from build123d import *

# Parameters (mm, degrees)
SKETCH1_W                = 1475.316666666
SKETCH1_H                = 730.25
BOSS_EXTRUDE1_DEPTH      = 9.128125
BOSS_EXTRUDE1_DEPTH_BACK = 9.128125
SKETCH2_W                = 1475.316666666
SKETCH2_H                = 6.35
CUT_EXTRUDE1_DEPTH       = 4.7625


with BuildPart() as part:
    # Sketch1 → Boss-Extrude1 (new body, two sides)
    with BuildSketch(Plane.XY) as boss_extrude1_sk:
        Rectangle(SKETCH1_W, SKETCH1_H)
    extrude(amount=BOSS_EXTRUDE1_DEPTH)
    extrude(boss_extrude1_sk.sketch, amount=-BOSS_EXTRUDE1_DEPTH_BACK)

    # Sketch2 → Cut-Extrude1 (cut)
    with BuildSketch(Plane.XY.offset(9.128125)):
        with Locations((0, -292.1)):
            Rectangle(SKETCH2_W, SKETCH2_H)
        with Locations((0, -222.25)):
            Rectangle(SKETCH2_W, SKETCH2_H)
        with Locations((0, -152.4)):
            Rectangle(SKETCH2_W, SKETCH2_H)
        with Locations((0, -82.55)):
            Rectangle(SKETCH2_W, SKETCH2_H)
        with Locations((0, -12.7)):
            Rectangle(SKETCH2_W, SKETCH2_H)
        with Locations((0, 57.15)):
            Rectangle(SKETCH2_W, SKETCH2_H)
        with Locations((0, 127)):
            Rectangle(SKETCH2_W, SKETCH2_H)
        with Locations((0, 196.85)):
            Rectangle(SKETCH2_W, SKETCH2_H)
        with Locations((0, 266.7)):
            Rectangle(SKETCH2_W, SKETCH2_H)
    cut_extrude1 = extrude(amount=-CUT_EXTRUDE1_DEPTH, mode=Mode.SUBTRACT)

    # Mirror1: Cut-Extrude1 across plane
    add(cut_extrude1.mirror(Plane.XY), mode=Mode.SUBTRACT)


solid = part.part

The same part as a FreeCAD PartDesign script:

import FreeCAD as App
import Part
import Sketcher
from FreeCAD import Vector
Q = App.Units.Quantity

doc = App.newDocument("Part")
body = doc.addObject("PartDesign::Body", "Body")

sketch1 = body.newObject("Sketcher::SketchObject", "Sketch")
sketch1.AttachmentSupport = (doc.getObject("XY_Plane"), [""])
sketch1.MapMode = "FlatFace"
sketch1.addGeometry([
    Part.LineSegment(Vector(-738, 365, 0), Vector(-738, -365, 0)),
    Part.LineSegment(Vector(-738, -365, 0), Vector(738, -365, 0)),
    Part.LineSegment(Vector(738, -365, 0), Vector(738, 365, 0)),
    Part.LineSegment(Vector(738, 365, 0), Vector(-738, 365, 0)),
], False)
sketch1.addConstraint([
    Sketcher.Constraint("Coincident", 0, 2, 1, 1),
    Sketcher.Constraint("Coincident", 1, 2, 2, 1),
    Sketcher.Constraint("Coincident", 2, 2, 3, 1),
    Sketcher.Constraint("Coincident", 3, 2, 0, 1),
    Sketcher.Constraint("Vertical", 0),
    Sketcher.Constraint("Horizontal", 1),
    Sketcher.Constraint("Vertical", 2),
    Sketcher.Constraint("Horizontal", 3),
    Sketcher.Constraint("Symmetric", 0, 2, 2, 2, -1, 1),
    Sketcher.Constraint("DistanceY", 0, 2, 0, 1, Q("28.75 in")),
    Sketcher.Constraint("DistanceX", 1, 1, 1, 2, 1475.316667),
])
pad1 = body.newObject("PartDesign::Pad", "Pad")
pad1.Profile = sketch1
pad1.Type = "TwoLengths"
pad1.Length = Q("0.359375 in")
pad1.Length2 = Q("0.359375 in")

sketch2 = body.newObject("Sketcher::SketchObject", "Sketch001")
sketch2.AttachmentSupport = (doc.getObject("XY_Plane"), [""])
sketch2.MapMode = "FlatFace"
sketch2.AttachmentOffset = App.Placement(Vector(0, 0, 0.359375 * 25.4), App.Rotation())
sketch2.addGeometry([
    Part.LineSegment(Vector(-738, -289, 0), Vector(-738, -295, 0)),
    Part.LineSegment(Vector(-738, -295, 0), Vector(738, -295, 0)),
    Part.LineSegment(Vector(738, -295, 0), Vector(738, -289, 0)),
    Part.LineSegment(Vector(738, -289, 0), Vector(-738, -289, 0)),
    Part.LineSegment(Vector(-738, -219, 0), Vector(-738, -225, 0)),
    Part.LineSegment(Vector(-738, -225, 0), Vector(738, -225, 0)),
    Part.LineSegment(Vector(738, -225, 0), Vector(738, -219, 0)),
    Part.LineSegment(Vector(738, -219, 0), Vector(-738, -219, 0)),
    Part.LineSegment(Vector(-738, -149, 0), Vector(-738, -156, 0)),
    Part.LineSegment(Vector(-738, -156, 0), Vector(738, -156, 0)),
    Part.LineSegment(Vector(738, -156, 0), Vector(738, -149, 0)),
    Part.LineSegment(Vector(738, -149, 0), Vector(-738, -149, 0)),
    Part.LineSegment(Vector(-738, -79, 0), Vector(-738, -86, 0)),
    Part.LineSegment(Vector(-738, -86, 0), Vector(738, -86, 0)),
    Part.LineSegment(Vector(738, -86, 0), Vector(738, -79, 0)),
    Part.LineSegment(Vector(738, -79, 0), Vector(-738, -79, 0)),
    Part.LineSegment(Vector(-738, -10, 0), Vector(-738, -16, 0)),
    Part.LineSegment(Vector(-738, -16, 0), Vector(738, -16, 0)),
    Part.LineSegment(Vector(738, -16, 0), Vector(738, -10, 0)),
    Part.LineSegment(Vector(738, -10, 0), Vector(-738, -10, 0)),
    Part.LineSegment(Vector(-738, 60, 0), Vector(-738, 54, 0)),
    Part.LineSegment(Vector(-738, 54, 0), Vector(738, 54, 0)),
    Part.LineSegment(Vector(738, 54, 0), Vector(738, 60, 0)),
    Part.LineSegment(Vector(738, 60, 0), Vector(-738, 60, 0)),
    Part.LineSegment(Vector(-738, 130, 0), Vector(-738, 124, 0)),
    Part.LineSegment(Vector(-738, 124, 0), Vector(738, 124, 0)),
    Part.LineSegment(Vector(738, 124, 0), Vector(738, 130, 0)),
    Part.LineSegment(Vector(738, 130, 0), Vector(-738, 130, 0)),
    Part.LineSegment(Vector(-738, 200, 0), Vector(-738, 194, 0)),
    Part.LineSegment(Vector(-738, 194, 0), Vector(738, 194, 0)),
    Part.LineSegment(Vector(738, 194, 0), Vector(738, 200, 0)),
    Part.LineSegment(Vector(738, 200, 0), Vector(-738, 200, 0)),
    Part.LineSegment(Vector(-738, 270, 0), Vector(-738, 264, 0)),
    Part.LineSegment(Vector(-738, 264, 0), Vector(738, 264, 0)),
    Part.LineSegment(Vector(738, 264, 0), Vector(738, 270, 0)),
    Part.LineSegment(Vector(738, 270, 0), Vector(-738, 270, 0)),
], False)
sketch2.addConstraint([
    Sketcher.Constraint("Coincident", 0, 2, 1, 1),
    Sketcher.Constraint("Coincident", 1, 2, 2, 1),
    Sketcher.Constraint("Coincident", 2, 2, 3, 1),
    Sketcher.Constraint("Coincident", 3, 2, 0, 1),
    Sketcher.Constraint("Coincident", 4, 2, 5, 1),
    Sketcher.Constraint("Coincident", 5, 2, 6, 1),
    Sketcher.Constraint("Coincident", 6, 2, 7, 1),
    Sketcher.Constraint("Coincident", 7, 2, 4, 1),
    Sketcher.Constraint("Coincident", 8, 2, 9, 1),
    Sketcher.Constraint("Coincident", 9, 2, 10, 1),
    Sketcher.Constraint("Coincident", 10, 2, 11, 1),
    Sketcher.Constraint("Coincident", 11, 2, 8, 1),
    Sketcher.Constraint("Coincident", 12, 2, 13, 1),
    Sketcher.Constraint("Coincident", 13, 2, 14, 1),
    Sketcher.Constraint("Coincident", 14, 2, 15, 1),
    Sketcher.Constraint("Coincident", 15, 2, 12, 1),
    Sketcher.Constraint("Coincident", 16, 2, 17, 1),
    Sketcher.Constraint("Coincident", 17, 2, 18, 1),
    Sketcher.Constraint("Coincident", 18, 2, 19, 1),
    Sketcher.Constraint("Coincident", 19, 2, 16, 1),
    Sketcher.Constraint("Coincident", 20, 2, 21, 1),
    Sketcher.Constraint("Coincident", 21, 2, 22, 1),
    Sketcher.Constraint("Coincident", 22, 2, 23, 1),
    Sketcher.Constraint("Coincident", 23, 2, 20, 1),
    Sketcher.Constraint("Coincident", 24, 2, 25, 1),
    Sketcher.Constraint("Coincident", 25, 2, 26, 1),
    Sketcher.Constraint("Coincident", 26, 2, 27, 1),
    Sketcher.Constraint("Coincident", 27, 2, 24, 1),
    Sketcher.Constraint("Coincident", 28, 2, 29, 1),
    Sketcher.Constraint("Coincident", 29, 2, 30, 1),
    Sketcher.Constraint("Coincident", 30, 2, 31, 1),
    Sketcher.Constraint("Coincident", 31, 2, 28, 1),
    Sketcher.Constraint("Coincident", 32, 2, 33, 1),
    Sketcher.Constraint("Coincident", 33, 2, 34, 1),
    Sketcher.Constraint("Coincident", 34, 2, 35, 1),
    Sketcher.Constraint("Coincident", 35, 2, 32, 1),
    Sketcher.Constraint("Vertical", 0),
    Sketcher.Constraint("Horizontal", 1),
    Sketcher.Constraint("Vertical", 2),
    Sketcher.Constraint("Horizontal", 3),
    Sketcher.Constraint("Vertical", 4),
    Sketcher.Constraint("Horizontal", 5),
    Sketcher.Constraint("Vertical", 6),
    Sketcher.Constraint("Horizontal", 7),
    Sketcher.Constraint("Vertical", 8),
    Sketcher.Constraint("Horizontal", 9),
    Sketcher.Constraint("Vertical", 10),
    Sketcher.Constraint("Horizontal", 11),
    Sketcher.Constraint("Vertical", 12),
    Sketcher.Constraint("Horizontal", 13),
    Sketcher.Constraint("Vertical", 14),
    Sketcher.Constraint("Horizontal", 15),
    Sketcher.Constraint("Vertical", 16),
    Sketcher.Constraint("Horizontal", 17),
    Sketcher.Constraint("Vertical", 18),
    Sketcher.Constraint("Horizontal", 19),
    Sketcher.Constraint("Vertical", 20),
    Sketcher.Constraint("Horizontal", 21),
    Sketcher.Constraint("Vertical", 22),
    Sketcher.Constraint("Horizontal", 23),
    Sketcher.Constraint("Vertical", 24),
    Sketcher.Constraint("Horizontal", 25),
    Sketcher.Constraint("Vertical", 26),
    Sketcher.Constraint("Horizontal", 27),
    Sketcher.Constraint("Vertical", 28),
    Sketcher.Constraint("Horizontal", 29),
    Sketcher.Constraint("Vertical", 30),
    Sketcher.Constraint("Horizontal", 31),
    Sketcher.Constraint("Vertical", 32),
    Sketcher.Constraint("Horizontal", 33),
    Sketcher.Constraint("Vertical", 34),
    Sketcher.Constraint("Horizontal", 35),
    Sketcher.Constraint("Vertical", 3, 2, 4, 2),
    Sketcher.Constraint("Vertical", 2, 2, 5, 2),
    Sketcher.Constraint("Vertical", 7, 2, 8, 2),
    Sketcher.Constraint("Vertical", 6, 2, 9, 2),
    Sketcher.Constraint("Vertical", 11, 2, 12, 2),
    Sketcher.Constraint("Vertical", 10, 2, 13, 2),
    Sketcher.Constraint("Vertical", 15, 2, 16, 2),
    Sketcher.Constraint("Vertical", 14, 2, 17, 2),
    Sketcher.Constraint("Vertical", 19, 2, 20, 2),
    Sketcher.Constraint("Vertical", 18, 2, 21, 2),
    Sketcher.Constraint("Vertical", 23, 2, 24, 2),
    Sketcher.Constraint("Vertical", 22, 2, 25, 2),
    Sketcher.Constraint("Vertical", 27, 2, 28, 2),
    Sketcher.Constraint("Vertical", 26, 2, 29, 2),
    Sketcher.Constraint("Vertical", 31, 2, 32, 2),
    Sketcher.Constraint("Vertical", 30, 2, 33, 2),
    Sketcher.Constraint("Equal", 2, 4),
    Sketcher.Constraint("Equal", 6, 8),
    Sketcher.Constraint("Equal", 10, 12),
    Sketcher.Constraint("Equal", 14, 16),
    Sketcher.Constraint("Equal", 18, 20),
    Sketcher.Constraint("Equal", 22, 24),
    Sketcher.Constraint("Equal", 26, 28),
    Sketcher.Constraint("Equal", 30, 32),
    Sketcher.Constraint("DistanceY", 1, 2, 6, 2, Q("3 in")),
    Sketcher.Constraint("DistanceY", 5, 2, 10, 2, Q("3 in")),
    Sketcher.Constraint("DistanceY", 3, 2, 12, 2, Q("8 in")),
    Sketcher.Constraint("DistanceY", 9, 2, 14, 2, Q("3 in")),
    Sketcher.Constraint("DistanceY", 7, 2, 16, 2, Q("8 in")),
    Sketcher.Constraint("DistanceY", 11, 2, 20, 2, Q("8 in")),
    Sketcher.Constraint("DistanceY", 15, 2, 24, 2, Q("8 in")),
    Sketcher.Constraint("DistanceY", 19, 2, 28, 2, Q("8 in")),
    Sketcher.Constraint("DistanceY", 23, 2, 32, 2, Q("8 in")),
    Sketcher.Constraint("DistanceY", 0, 2, -1, 1, Q("11.625 in")),
    Sketcher.Constraint("DistanceX", 1, 1, 1, 2, 1475.316667),
    Sketcher.Constraint("DistanceX", 0, 2, -1, 1, 737.658333),
])
pocket1 = body.newObject("PartDesign::Pocket", "Pocket")
pocket1.Profile = sketch2
pocket1.Length = Q("0.1875 in")
doc.recompute()

mirrored = body.newObject("PartDesign::Mirrored", "Mirrored")
mirrored.Originals = [pocket1]
mirrored.MirrorPlane = (doc.getObject("XY_Plane"), [""])
body.Tip = mirrored

doc.recompute()
